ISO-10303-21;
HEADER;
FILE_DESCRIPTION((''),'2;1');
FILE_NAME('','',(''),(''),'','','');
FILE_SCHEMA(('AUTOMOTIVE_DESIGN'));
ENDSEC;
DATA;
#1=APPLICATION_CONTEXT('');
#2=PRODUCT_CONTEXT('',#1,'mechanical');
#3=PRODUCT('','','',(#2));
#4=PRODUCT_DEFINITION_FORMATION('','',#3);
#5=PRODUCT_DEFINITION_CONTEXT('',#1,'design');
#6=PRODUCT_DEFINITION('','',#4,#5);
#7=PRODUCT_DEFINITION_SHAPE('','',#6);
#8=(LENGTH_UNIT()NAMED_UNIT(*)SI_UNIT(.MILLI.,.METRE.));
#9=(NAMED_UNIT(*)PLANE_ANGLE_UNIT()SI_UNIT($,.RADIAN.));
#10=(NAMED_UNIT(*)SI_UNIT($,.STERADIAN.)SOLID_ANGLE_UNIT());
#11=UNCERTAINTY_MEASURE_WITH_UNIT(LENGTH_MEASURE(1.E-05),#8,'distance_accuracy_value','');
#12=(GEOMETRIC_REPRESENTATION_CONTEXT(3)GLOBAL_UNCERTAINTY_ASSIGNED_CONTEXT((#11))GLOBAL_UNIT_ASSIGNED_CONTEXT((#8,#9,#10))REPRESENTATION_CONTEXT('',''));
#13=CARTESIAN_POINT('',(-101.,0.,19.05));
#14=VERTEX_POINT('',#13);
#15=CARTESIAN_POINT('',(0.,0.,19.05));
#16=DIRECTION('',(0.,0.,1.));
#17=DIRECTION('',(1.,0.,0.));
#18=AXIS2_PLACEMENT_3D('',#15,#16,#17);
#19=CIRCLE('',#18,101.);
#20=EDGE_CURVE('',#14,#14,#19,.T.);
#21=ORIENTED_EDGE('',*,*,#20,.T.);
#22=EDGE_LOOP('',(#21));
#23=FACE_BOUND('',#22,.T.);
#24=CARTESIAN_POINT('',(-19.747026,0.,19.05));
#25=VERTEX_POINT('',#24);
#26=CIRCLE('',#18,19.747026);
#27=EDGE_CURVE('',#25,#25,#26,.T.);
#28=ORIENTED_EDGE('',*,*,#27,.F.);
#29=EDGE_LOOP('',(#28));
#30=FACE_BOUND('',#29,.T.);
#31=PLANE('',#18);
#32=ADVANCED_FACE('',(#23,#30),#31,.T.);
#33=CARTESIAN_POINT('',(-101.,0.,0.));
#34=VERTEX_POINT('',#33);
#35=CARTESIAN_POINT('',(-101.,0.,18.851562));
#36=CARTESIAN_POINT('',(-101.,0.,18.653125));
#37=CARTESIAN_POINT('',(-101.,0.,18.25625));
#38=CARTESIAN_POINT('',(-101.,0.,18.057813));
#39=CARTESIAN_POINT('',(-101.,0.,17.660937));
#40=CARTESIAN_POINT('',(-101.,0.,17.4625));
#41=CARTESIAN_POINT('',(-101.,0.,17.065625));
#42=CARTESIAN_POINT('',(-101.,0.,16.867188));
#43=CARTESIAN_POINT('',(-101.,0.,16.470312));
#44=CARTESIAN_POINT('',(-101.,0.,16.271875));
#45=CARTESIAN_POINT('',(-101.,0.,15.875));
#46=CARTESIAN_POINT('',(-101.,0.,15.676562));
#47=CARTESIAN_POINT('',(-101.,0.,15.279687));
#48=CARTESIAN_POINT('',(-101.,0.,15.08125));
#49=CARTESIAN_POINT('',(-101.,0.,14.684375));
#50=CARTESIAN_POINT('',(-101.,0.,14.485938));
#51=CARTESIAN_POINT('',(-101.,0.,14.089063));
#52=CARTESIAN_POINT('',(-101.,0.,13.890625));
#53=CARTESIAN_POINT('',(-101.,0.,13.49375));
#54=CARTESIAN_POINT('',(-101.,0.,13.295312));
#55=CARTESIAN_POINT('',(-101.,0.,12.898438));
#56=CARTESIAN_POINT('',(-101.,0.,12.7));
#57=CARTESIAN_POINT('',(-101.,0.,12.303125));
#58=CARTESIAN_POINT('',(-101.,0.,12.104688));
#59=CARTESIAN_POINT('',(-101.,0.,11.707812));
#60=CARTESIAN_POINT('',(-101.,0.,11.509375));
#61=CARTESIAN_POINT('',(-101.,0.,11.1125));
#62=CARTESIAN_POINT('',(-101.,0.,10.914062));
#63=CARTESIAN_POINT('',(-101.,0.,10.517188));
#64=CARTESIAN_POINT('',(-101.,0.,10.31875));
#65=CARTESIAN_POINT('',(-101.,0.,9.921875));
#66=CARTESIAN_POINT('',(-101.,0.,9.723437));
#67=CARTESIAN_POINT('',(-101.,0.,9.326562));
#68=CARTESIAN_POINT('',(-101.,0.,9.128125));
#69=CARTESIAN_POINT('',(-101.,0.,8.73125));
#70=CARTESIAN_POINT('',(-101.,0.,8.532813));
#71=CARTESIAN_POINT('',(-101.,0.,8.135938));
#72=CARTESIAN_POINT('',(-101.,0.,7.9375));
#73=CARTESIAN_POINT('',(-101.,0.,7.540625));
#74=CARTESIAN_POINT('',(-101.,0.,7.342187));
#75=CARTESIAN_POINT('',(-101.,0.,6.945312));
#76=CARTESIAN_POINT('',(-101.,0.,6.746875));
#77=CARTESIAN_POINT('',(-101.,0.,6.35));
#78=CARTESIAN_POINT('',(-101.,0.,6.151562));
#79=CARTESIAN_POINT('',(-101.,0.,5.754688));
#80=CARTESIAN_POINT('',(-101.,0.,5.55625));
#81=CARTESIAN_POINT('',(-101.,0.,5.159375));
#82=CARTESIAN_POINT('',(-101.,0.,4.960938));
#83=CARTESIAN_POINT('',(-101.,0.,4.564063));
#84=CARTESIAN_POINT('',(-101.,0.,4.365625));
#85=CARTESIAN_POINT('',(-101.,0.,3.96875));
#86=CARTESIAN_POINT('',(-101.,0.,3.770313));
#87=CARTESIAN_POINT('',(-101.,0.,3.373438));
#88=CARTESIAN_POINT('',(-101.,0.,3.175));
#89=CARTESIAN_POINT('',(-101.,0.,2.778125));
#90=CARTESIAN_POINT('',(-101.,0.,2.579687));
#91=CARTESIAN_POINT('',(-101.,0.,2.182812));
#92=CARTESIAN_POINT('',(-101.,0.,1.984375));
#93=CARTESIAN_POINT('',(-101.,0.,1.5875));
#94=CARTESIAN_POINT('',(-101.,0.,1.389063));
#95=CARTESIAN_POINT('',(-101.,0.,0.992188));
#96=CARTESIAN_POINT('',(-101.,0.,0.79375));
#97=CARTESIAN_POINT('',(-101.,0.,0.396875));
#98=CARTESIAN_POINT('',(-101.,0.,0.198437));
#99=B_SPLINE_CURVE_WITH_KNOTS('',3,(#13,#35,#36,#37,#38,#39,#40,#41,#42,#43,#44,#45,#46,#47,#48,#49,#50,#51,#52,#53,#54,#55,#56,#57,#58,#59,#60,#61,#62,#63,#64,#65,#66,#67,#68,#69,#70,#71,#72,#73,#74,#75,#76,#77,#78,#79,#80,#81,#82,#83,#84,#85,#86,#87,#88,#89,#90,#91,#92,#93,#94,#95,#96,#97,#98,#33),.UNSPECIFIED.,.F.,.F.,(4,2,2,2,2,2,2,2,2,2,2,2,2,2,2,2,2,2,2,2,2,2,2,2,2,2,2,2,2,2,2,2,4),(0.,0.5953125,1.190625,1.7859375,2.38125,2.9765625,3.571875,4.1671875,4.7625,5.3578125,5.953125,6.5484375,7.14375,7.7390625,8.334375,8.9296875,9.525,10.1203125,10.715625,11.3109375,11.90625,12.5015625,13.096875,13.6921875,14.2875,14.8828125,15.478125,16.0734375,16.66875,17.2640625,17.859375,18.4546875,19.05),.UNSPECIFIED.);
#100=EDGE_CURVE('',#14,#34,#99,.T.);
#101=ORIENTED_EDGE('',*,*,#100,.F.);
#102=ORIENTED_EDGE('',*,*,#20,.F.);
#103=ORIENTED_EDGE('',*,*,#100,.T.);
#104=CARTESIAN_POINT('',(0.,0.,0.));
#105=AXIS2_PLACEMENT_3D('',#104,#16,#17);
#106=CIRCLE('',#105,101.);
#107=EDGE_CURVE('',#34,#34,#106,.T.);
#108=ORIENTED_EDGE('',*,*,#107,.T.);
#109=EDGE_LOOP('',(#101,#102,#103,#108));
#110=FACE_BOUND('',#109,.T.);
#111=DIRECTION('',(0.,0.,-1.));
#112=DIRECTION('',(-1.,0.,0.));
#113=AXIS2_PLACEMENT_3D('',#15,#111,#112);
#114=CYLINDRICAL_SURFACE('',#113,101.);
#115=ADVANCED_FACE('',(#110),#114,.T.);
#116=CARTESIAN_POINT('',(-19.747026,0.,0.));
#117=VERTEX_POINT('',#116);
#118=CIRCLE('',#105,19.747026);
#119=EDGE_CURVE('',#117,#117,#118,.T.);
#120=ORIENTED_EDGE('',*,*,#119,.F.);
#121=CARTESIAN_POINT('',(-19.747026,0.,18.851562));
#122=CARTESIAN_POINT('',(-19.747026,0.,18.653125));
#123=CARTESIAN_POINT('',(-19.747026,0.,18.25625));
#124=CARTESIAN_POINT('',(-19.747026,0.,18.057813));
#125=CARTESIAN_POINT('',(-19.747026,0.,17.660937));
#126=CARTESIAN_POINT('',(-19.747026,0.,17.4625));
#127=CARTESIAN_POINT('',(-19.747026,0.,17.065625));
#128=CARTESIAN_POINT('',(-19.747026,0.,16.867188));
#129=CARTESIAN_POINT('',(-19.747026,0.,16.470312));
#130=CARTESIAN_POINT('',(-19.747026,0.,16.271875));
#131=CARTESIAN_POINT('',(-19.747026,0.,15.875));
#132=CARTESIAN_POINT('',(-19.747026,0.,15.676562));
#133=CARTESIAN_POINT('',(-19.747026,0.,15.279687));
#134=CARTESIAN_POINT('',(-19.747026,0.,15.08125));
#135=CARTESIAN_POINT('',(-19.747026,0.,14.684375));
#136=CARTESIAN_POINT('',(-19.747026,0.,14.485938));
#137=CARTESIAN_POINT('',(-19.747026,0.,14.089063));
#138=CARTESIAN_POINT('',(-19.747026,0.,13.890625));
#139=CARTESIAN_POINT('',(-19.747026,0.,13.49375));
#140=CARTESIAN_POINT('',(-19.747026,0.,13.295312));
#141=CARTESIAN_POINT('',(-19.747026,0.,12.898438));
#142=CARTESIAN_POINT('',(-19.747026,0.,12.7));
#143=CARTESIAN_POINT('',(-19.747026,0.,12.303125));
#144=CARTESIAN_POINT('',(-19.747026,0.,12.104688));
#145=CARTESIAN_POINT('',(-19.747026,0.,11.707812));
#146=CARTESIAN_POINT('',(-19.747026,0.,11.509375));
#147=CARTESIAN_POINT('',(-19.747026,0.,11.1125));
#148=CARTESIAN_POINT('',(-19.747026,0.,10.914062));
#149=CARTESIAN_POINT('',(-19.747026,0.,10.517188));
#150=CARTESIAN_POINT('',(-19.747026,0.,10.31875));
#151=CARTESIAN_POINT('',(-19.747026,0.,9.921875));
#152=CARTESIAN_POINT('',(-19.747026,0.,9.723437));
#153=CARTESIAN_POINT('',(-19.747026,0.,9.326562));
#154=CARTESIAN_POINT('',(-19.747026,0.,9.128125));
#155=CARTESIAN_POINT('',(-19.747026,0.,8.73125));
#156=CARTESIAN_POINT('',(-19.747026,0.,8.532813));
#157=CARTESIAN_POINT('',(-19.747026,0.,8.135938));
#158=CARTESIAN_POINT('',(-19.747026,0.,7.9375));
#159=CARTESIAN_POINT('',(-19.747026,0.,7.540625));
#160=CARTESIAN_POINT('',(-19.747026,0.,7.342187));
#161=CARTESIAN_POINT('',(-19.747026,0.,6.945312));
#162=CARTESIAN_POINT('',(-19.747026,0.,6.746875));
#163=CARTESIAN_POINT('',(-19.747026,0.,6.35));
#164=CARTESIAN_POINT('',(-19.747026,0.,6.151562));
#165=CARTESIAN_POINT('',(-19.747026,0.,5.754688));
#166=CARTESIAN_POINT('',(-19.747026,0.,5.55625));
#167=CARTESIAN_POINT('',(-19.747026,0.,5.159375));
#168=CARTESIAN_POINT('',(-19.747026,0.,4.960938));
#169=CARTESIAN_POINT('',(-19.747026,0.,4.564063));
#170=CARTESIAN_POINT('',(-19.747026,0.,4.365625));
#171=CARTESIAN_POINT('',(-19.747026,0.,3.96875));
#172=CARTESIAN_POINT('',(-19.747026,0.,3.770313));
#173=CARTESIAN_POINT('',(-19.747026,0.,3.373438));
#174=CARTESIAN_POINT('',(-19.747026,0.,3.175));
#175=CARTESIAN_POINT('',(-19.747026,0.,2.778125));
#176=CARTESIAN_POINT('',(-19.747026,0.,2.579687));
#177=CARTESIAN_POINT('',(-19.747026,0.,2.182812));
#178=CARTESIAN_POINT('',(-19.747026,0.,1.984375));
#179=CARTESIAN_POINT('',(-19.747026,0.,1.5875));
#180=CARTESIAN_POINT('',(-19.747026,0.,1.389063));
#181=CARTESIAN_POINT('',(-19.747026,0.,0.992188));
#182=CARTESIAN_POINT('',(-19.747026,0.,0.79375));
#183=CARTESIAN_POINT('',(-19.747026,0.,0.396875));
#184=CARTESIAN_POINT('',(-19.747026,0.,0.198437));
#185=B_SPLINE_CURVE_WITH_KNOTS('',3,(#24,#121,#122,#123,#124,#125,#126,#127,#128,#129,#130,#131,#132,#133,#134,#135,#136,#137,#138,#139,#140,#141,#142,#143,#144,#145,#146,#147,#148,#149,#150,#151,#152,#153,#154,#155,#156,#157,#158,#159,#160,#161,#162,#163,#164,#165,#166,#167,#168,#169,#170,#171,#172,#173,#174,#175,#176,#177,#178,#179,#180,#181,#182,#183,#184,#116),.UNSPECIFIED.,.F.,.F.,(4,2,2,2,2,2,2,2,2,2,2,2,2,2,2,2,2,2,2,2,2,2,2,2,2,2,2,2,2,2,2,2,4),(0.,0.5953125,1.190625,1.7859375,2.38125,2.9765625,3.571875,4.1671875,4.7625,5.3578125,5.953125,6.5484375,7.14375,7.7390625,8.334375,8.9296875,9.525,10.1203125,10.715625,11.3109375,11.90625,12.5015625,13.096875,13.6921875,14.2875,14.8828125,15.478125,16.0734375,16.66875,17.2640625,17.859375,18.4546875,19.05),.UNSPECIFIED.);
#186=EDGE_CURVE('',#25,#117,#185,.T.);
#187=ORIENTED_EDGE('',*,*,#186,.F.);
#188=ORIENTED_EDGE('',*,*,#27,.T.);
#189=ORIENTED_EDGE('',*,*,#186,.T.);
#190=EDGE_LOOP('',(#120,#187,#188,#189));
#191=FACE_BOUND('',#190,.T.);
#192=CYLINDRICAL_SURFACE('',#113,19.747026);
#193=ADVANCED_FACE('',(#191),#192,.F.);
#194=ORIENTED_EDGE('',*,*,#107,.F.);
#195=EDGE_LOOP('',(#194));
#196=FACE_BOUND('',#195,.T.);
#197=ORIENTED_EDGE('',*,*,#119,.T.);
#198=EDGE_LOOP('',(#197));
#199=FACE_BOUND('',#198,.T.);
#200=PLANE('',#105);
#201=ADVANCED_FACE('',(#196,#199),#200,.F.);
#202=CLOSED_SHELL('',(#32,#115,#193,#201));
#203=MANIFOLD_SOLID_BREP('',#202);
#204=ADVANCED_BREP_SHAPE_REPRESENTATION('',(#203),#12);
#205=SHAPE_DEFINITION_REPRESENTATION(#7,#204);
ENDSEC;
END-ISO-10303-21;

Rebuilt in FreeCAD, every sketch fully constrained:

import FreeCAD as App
import Part
import Sketcher

doc = App.newDocument("Part")
params = doc.addObject("Spreadsheet::Sheet", "Params")
for row, (alias, value) in enumerate([
    ("sketch1_diameter", "202 mm"),
    ("pad1_length", "19.05 mm"),
], start=1):
    params.set(f"A{row}", alias)
    params.set(f"B{row}", "=" + value)
    params.setAlias(f"B{row}", alias)

body = doc.addObject("PartDesign::Body", "Body")

sketch1 = doc.addObject("Sketcher::SketchObject", "Sketch")
body.addObject(sketch1)
sketch1.AttachmentSupport = (doc.XY_Plane, [""])
sketch1.MapMode = "FlatFace"
sketch1.addGeometry(Part.Circle(App.Vector(0, 0, 0), App.Vector(0, 0, 1), 101), False)
sketch1.addGeometry(Part.Circle(App.Vector(0, 0, 0), App.Vector(0, 0, 1), 19.747026), False)
sketch1.addConstraint(Sketcher.Constraint("Coincident", 0, 3, -1, 1))
sketch1.addConstraint(Sketcher.Constraint("Coincident", 1, 3, -1, 1))
sketch1.addConstraint(Sketcher.Constraint("Diameter", 0, 202.0))
sketch1.addConstraint(Sketcher.Constraint("Diameter", 1, 39.494052))
sketch1.setExpression("Constraints[2]", "Params.sketch1_diameter")
pad1 = doc.addObject("PartDesign::Pad", "Pad")
body.addObject(pad1)
pad1.Profile = sketch1
pad1.setExpression("Length", "Params.pad1_length")

doc.recompute()
